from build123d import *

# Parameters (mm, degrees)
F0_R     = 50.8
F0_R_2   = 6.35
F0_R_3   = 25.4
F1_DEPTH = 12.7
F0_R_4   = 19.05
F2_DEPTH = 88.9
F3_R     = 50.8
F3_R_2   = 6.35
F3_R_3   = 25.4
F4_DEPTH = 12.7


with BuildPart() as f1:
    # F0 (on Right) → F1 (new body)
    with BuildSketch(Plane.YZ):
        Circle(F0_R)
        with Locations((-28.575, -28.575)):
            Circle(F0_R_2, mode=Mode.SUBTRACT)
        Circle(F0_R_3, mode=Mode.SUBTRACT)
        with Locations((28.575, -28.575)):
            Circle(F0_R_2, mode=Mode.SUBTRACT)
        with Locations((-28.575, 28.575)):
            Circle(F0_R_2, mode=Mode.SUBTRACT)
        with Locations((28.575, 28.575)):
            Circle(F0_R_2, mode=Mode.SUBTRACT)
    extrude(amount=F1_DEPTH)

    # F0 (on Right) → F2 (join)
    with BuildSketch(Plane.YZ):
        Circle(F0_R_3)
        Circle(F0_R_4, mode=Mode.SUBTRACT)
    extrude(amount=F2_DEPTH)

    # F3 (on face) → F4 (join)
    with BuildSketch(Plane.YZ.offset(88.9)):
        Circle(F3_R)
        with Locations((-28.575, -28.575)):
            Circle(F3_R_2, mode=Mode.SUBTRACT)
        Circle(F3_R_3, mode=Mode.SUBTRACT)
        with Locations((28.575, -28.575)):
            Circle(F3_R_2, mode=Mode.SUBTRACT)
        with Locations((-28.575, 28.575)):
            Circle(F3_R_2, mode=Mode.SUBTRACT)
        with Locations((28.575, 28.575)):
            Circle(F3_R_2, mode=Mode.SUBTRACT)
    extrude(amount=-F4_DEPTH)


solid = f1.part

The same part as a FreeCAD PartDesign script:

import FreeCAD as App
import Part
import Sketcher
from FreeCAD import Vector
Q = App.Units.Quantity

doc = App.newDocument("Part")
body = doc.addObject("PartDesign::Body", "Body")

sketch1 = body.newObject("Sketcher::SketchObject", "Sketch")
sketch1.AttachmentSupport = (doc.getObject("YZ_Plane"), [""])
sketch1.MapMode = "FlatFace"
sketch1.addGeometry([
    Part.Circle(Vector(0, 0, 0), Vector(0, 0, 1), 51),
    Part.Circle(Vector(-29, -29, 0), Vector(0, 0, 1), 6),
    Part.Circle(Vector(29, -29, 0), Vector(0, 0, 1), 6),
    Part.Circle(Vector(-29, 29, 0), Vector(0, 0, 1), 6),
    Part.Circle(Vector(0, 0, 0), Vector(0, 0, 1), 25),
    Part.Circle(Vector(29, 29, 0), Vector(0, 0, 1), 6),
], False)
sketch1.addConstraint([
    Sketcher.Constraint("Coincident", 0, 3, -1, 1),
    Sketcher.Constraint("Coincident", 4, 3, -1, 1),
    Sketcher.Constraint("Equal", 1, 2),
    Sketcher.Constraint("Equal", 2, 3),
    Sketcher.Constraint("Equal", 3, 5),
    Sketcher.Constraint("Symmetric", 2, 3, 3, 3, -1, 1),
    Sketcher.Constraint("Symmetric", 1, 3, 5, 3, -1, 1),
    Sketcher.Constraint("Symmetric", 1, 3, 2, 3, -2),
    Sketcher.Constraint("Diameter", 0, Q("4 in")),
    Sketcher.Constraint("Diameter", 4, Q("2 in")),
    Sketcher.Constraint("Diameter", 1, Q("0.5 in")),
    Sketcher.Constraint("DistanceX", 1, 3, 2, 3, Q("2.25 in")),
    Sketcher.Constraint("DistanceY", 1, 3, 3, 3, Q("2.25 in")),
])
pad1 = body.newObject("PartDesign::Pad", "Pad")
pad1.Profile = sketch1
pad1.Length = Q("0.5 in")

sketch2 = body.newObject("Sketcher::SketchObject", "Sketch001")
sketch2.AttachmentSupport = (doc.getObject("YZ_Plane"), [""])
sketch2.MapMode = "FlatFace"
sketch2.addGeometry([
    Part.Circle(Vector(0, 0, 0), Vector(0, 0, 1), 25),
    Part.Circle(Vector(0, 0, 0), Vector(0, 0, 1), 19),
], False)
sketch2.addConstraint([
    Sketcher.Constraint("Coincident", 0, 3, -1, 1),
    Sketcher.Constraint("Coincident", 1, 3, -1, 1),
    Sketcher.Constraint("Diameter", 0, Q("2 in")),
    Sketcher.Constraint("Diameter", 1, Q("1.5 in")),
])
pad2 = body.newObject("PartDesign::Pad", "Pad001")
pad2.Profile = sketch2
pad2.Length = Q("3.5 in")

sketch3 = body.newObject("Sketcher::SketchObject", "Sketch002")
sketch3.AttachmentSupport = (doc.getObject("YZ_Plane"), [""])
sketch3.MapMode = "FlatFace"
sketch3.AttachmentOffset = App.Placement(Vector(0, 0, 3.5 * 25.4), App.Rotation())
sketch3.addGeometry([
    Part.Circle(Vector(0, 0, 0), Vector(0, 0, 1), 51),
    Part.Circle(Vector(-29, -29, 0), Vector(0, 0, 1), 6),
    Part.Circle(Vector(29, -29, 0), Vector(0, 0, 1), 6),
    Part.Circle(Vector(-29, 29, 0), Vector(0, 0, 1), 6),
    Part.Circle(Vector(0, 0, 0), Vector(0, 0, 1), 25),
    Part.Circle(Vector(29, 29, 0), Vector(0, 0, 1), 6),
], False)
sketch3.addConstraint([
    Sketcher.Constraint("Coincident", 0, 3, -1, 1),
    Sketcher.Constraint("Coincident", 4, 3, -1, 1),
    Sketcher.Constraint("Equal", 1, 2),
    Sketcher.Constraint("Equal", 2, 3),
    Sketcher.Constraint("Equal", 3, 5),
    Sketcher.Constraint("Symmetric", 2, 3, 3, 3, -1, 1),
    Sketcher.Constraint("Symmetric", 1, 3, 5, 3, -1, 1),
    Sketcher.Constraint("Symmetric", 1, 3, 2, 3, -2),
    Sketcher.Constraint("Diameter", 0, Q("4 in")),
    Sketcher.Constraint("Diameter", 4, Q("2 in")),
    Sketcher.Constraint("Diameter", 1, Q("0.5 in")),
    Sketcher.Constraint("DistanceX", 1, 3, 2, 3, Q("2.25 in")),
    Sketcher.Constraint("DistanceY", 1, 3, 3, 3, Q("2.25 in")),
])
pad3 = body.newObject("PartDesign::Pad", "Pad002")
pad3.Profile = sketch3
pad3.Length = Q("0.5 in")
pad3.Reversed = True

doc.recompute()
